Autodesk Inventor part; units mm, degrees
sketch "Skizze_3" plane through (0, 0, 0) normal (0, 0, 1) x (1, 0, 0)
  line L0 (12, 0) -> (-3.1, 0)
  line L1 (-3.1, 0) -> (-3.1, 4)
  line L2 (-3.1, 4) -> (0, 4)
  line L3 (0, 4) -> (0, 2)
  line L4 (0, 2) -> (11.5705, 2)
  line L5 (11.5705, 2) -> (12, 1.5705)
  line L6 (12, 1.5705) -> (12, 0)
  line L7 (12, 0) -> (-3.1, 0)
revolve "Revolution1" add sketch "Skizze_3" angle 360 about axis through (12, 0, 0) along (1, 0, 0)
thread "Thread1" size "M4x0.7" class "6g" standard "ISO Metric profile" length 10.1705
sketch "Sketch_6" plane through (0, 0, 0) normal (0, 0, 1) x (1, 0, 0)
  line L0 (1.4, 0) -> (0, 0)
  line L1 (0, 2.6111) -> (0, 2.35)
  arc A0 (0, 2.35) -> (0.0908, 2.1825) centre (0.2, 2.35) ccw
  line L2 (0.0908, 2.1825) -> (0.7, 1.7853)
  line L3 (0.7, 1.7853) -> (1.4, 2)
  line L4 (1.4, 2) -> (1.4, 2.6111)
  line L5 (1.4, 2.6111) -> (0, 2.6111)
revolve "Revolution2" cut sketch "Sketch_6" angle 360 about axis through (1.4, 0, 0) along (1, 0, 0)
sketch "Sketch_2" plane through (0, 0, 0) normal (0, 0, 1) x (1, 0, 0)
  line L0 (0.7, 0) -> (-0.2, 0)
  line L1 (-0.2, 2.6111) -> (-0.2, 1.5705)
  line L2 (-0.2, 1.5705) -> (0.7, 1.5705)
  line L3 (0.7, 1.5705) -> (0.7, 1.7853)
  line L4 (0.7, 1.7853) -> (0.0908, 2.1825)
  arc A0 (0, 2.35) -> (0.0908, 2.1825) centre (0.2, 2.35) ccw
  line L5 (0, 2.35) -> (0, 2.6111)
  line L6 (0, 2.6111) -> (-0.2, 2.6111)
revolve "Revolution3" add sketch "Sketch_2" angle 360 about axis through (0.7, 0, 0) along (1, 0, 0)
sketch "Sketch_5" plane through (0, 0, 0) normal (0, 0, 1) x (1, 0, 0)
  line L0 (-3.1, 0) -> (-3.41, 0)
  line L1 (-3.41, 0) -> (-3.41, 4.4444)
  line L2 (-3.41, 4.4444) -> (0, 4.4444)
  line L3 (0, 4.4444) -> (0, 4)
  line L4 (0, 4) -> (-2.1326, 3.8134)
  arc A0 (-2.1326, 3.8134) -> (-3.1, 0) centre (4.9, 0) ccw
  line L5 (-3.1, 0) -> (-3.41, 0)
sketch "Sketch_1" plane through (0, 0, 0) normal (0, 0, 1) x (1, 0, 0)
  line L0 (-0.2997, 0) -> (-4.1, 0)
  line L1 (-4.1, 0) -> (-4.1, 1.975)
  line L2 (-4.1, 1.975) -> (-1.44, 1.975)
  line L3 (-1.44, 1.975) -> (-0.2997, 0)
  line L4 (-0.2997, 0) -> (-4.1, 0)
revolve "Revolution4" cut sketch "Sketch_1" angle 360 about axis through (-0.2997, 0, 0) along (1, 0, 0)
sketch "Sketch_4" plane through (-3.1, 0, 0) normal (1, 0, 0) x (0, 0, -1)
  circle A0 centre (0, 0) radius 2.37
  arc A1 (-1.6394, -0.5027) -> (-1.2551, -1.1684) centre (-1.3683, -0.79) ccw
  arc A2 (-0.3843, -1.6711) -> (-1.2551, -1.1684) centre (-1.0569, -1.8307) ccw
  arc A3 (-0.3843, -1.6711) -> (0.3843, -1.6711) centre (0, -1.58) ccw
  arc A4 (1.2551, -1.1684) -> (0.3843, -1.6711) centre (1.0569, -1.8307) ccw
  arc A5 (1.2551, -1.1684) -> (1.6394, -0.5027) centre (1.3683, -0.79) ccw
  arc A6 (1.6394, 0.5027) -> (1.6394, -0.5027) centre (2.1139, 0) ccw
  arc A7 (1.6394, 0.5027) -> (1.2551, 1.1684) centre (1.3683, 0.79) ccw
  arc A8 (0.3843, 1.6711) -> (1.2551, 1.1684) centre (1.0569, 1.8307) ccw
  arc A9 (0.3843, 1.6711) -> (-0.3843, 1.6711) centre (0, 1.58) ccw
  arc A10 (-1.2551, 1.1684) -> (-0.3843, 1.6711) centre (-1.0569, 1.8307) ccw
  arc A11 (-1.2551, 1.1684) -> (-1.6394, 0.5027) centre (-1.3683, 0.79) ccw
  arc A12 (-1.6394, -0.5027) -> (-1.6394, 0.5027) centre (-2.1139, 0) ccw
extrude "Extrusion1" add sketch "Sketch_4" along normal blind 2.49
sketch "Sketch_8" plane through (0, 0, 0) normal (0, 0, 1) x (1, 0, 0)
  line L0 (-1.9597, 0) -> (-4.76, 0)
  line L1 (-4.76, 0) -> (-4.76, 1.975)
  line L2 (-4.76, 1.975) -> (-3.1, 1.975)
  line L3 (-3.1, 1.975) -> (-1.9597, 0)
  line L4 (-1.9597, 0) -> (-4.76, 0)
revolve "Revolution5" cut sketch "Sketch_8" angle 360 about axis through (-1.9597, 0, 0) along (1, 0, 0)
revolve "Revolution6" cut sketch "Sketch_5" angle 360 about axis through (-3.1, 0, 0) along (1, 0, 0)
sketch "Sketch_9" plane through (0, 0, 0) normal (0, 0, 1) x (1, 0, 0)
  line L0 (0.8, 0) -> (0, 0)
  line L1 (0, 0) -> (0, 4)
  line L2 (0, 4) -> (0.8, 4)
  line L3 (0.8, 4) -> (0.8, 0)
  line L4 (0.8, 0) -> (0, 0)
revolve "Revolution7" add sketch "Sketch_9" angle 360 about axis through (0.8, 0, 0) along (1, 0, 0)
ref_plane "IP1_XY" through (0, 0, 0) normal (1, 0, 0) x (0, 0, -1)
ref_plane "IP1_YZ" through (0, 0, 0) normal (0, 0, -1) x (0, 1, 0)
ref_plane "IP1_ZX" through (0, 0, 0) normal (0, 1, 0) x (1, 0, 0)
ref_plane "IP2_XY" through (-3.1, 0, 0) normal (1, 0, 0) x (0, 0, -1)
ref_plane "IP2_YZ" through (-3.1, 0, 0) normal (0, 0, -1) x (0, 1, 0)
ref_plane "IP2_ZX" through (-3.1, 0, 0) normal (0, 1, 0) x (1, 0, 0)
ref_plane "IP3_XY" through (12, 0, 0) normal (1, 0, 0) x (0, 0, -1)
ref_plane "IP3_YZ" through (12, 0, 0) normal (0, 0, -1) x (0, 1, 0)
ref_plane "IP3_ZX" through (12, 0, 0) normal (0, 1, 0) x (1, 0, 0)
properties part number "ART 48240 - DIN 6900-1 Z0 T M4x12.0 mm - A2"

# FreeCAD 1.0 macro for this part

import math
import FreeCAD as App
import Part
import Sketcher
Q = App.Units.Quantity


def add_polygon(sketch, points):
    """Adds a closed chain of lines whose ends are joined by coincident constraints."""
    first, n = sketch.GeometryCount, len(points)
    for a, b in zip(points, points[1:] + points[:1]):
        sketch.addGeometry(Part.LineSegment(App.Vector(*a, 0), App.Vector(*b, 0)), False)
    for i in range(n):
        sketch.addConstraint(Sketcher.Constraint("Coincident", first + i, 2, first + (i + 1) % n, 1))

doc = App.newDocument("Part")
body = doc.addObject("PartDesign::Body", "Body")

sketch1 = body.newObject("Sketcher::SketchObject", "Sketch")
sketch1.AttachmentSupport = (doc.getObject("XY_Plane"), [""])
sketch1.MapMode = "FlatFace"
add_polygon(sketch1, [(-3.1, 0), (12, 0), (12, 1.5705), (11.5705, 2), (0, 2), (0, 4), (-3.1, 4)])
sketch1.addConstraint(Sketcher.Constraint("Horizontal", 0))
sketch1.addConstraint(Sketcher.Constraint("Vertical", 1))
sketch1.addConstraint(Sketcher.Constraint("Horizontal", 3))
sketch1.addConstraint(Sketcher.Constraint("Vertical", 4))
sketch1.addConstraint(Sketcher.Constraint("Horizontal", 5))
sketch1.addConstraint(Sketcher.Constraint("Vertical", 6))
sketch1.addConstraint(Sketcher.Constraint("PointOnObject", 0, 2, -1))
sketch1.addConstraint(Sketcher.Constraint("PointOnObject", 3, 2, -2))
sketch1.addConstraint(Sketcher.Constraint("DistanceY", 4, 1, 4, 2, 2.0))
sketch1.addConstraint(Sketcher.Constraint("DistanceY", 6, 2, 6, 1, 4.0))
sketch1.addConstraint(Sketcher.Constraint("Angle", 2, Q("135 deg")))
sketch1.addConstraint(Sketcher.Constraint("DistanceX", 0, 1, 0, 2, 15.1))
sketch1.addConstraint(Sketcher.Constraint("DistanceX", 5, 2, 5, 1, 3.1))
sketch1.addConstraint(Sketcher.Constraint("DistanceX", 3, 2, 3, 1, 11.5705))
revolution = body.newObject("PartDesign::Revolution", "Revolution")
revolution.Profile = sketch1
revolution.ReferenceAxis = (sketch1, ["H_Axis"])
revolution.Angle = 360

sketch2 = body.newObject("Sketcher::SketchObject", "Sketch001")
sketch2.AttachmentSupport = (doc.getObject("XY_Plane"), [""])
sketch2.MapMode = "FlatFace"
sketch2.addGeometry(Part.LineSegment(App.Vector(1.4, 2.6111, 0), App.Vector(0, 2.6111, 0)), False)
sketch2.addGeometry(Part.LineSegment(App.Vector(0, 2.6111, 0), App.Vector(0, 2.35, 0)), False)
sketch2.addGeometry(Part.ArcOfCircle(Part.Circle(App.Vector(0.2, 2.35, 0), App.Vector(0, 0, 1), 0.2), math.radians(180), math.radians(236.89805)), False)
sketch2.addGeometry(Part.LineSegment(App.Vector(0.0908, 2.1825, 0), App.Vector(0.7, 1.7853, 0)), False)
sketch2.addGeometry(Part.LineSegment(App.Vector(0.7, 1.7853, 0), App.Vector(1.4, 2, 0)), False)
sketch2.addGeometry(Part.LineSegment(App.Vector(1.4, 2, 0), App.Vector(1.4, 2.6111, 0)), False)
sketch2.addConstraint(Sketcher.Constraint("Coincident", 0, 2, 1, 1))
sketch2.addConstraint(Sketcher.Constraint("Tangent", 1, 2, 2, 1))
sketch2.addConstraint(Sketcher.Constraint("Tangent", 2, 2, 3, 1))
sketch2.addConstraint(Sketcher.Constraint("Coincident", 3, 2, 4, 1))
sketch2.addConstraint(Sketcher.Constraint("Coincident", 4, 2, 5, 1))
sketch2.addConstraint(Sketcher.Constraint("Coincident", 5, 2, 0, 1))
sketch2.addConstraint(Sketcher.Constraint("Horizontal", 0))
sketch2.addConstraint(Sketcher.Constraint("Vertical", 1))
sketch2.addConstraint(Sketcher.Constraint("Vertical", 5))
sketch2.addConstraint(Sketcher.Constraint("PointOnObject", 0, 2, -2))
sketch2.addConstraint(Sketcher.Constraint("Radius", 2, 0.2))
sketch2.addConstraint(Sketcher.Constraint("DistanceX", 0, 2, 0, 1, 1.4))
sketch2.addConstraint(Sketcher.Constraint("DistanceY", -1, 1, 4, 2, 2.0))
sketch2.addConstraint(Sketcher.Constraint("DistanceX", -1, 1, 3, 2, 0.7))
sketch2.addConstraint(Sketcher.Constraint("DistanceY", 1, 2, 1, 1, 0.261))
sketch2.addConstraint(Sketcher.Constraint("DistanceY", 5, 1, 5, 2, 0.611))
sketch2.addConstraint(Sketcher.Constraint("Distance", 3, 0.7272))
groove = body.newObject("PartDesign::Groove", "Groove")
groove.Profile = sketch2
groove.ReferenceAxis = (sketch2, ["H_Axis"])
groove.Angle = 360

sketch3 = body.newObject("Sketcher::SketchObject", "Sketch002")
sketch3.AttachmentSupport = (doc.getObject("XY_Plane"), [""])
sketch3.MapMode = "FlatFace"
sketch3.addGeometry(Part.LineSegment(App.Vector(0, 2.6111, 0), App.Vector(-0.2, 2.6111, 0)), False)
sketch3.addGeometry(Part.LineSegment(App.Vector(-0.2, 2.6111, 0), App.Vector(-0.2, 1.5705, 0)), False)
sketch3.addGeometry(Part.LineSegment(App.Vector(-0.2, 1.5705, 0), App.Vector(0.7, 1.5705, 0)), False)
sketch3.addGeometry(Part.LineSegment(App.Vector(0.7, 1.5705, 0), App.Vector(0.7, 1.7853, 0)), False)
sketch3.addGeometry(Part.LineSegment(App.Vector(0.7, 1.7853, 0), App.Vector(0.0908, 2.1825, 0)), False)
sketch3.addGeometry(Part.ArcOfCircle(Part.Circle(App.Vector(0.2, 2.35, 0), App.Vector(0, 0, 1), 0.2), math.radians(180), math.radians(236.89805)), False)
sketch3.addGeometry(Part.LineSegment(App.Vector(0, 2.35, 0), App.Vector(0, 2.6111, 0)), False)
sketch3.addConstraint(Sketcher.Constraint("Coincident", 0, 2, 1, 1))
sketch3.addConstraint(Sketcher.Constraint("Coincident", 1, 2, 2, 1))
sketch3.addConstraint(Sketcher.Constraint("Coincident", 2, 2, 3, 1))
sketch3.addConstraint(Sketcher.Constraint("Coincident", 3, 2, 4, 1))
sketch3.addConstraint(Sketcher.Constraint("Tangent", 4, 2, 5, 2))
sketch3.addConstraint(Sketcher.Constraint("Tangent", 5, 1, 6, 1))
sketch3.addConstraint(Sketcher.Constraint("Coincident", 6, 2, 0, 1))
sketch3.addConstraint(Sketcher.Constraint("Horizontal", 0))
sketch3.addConstraint(Sketcher.Constraint("Vertical", 1))
sketch3.addConstraint(Sketcher.Constraint("Horizontal", 2))
sketch3.addConstraint(Sketcher.Constraint("Vertical", 3))
sketch3.addConstraint(Sketcher.Constraint("Vertical", 6))
sketch3.addConstraint(Sketcher.Constraint("PointOnObject", 5, 1, -2))
sketch3.addConstraint(Sketcher.Constraint("Radius", 5, 0.2))
sketch3.addConstraint(Sketcher.Constraint("DistanceX", 0, 2, 0, 1, 0.2))
sketch3.addConstraint(Sketcher.Constraint("DistanceX", 2, 1, 2, 2, 0.9))
sketch3.addConstraint(Sketcher.Constraint("DistanceY", 6, 1, 6, 2, 0.261))
sketch3.addConstraint(Sketcher.Constraint("DistanceY", -1, 1, 5, 3, 2.35))
sketch3.addConstraint(Sketcher.Constraint("DistanceY", 1, 2, 1, 1, 1.0406))
sketch3.addConstraint(Sketcher.Constraint("DistanceY", 3, 1, 3, 2, 0.2148))
revolution2 = body.newObject("PartDesign::Revolution", "Revolution001")
revolution2.Profile = sketch3
revolution2.ReferenceAxis = (sketch3, ["H_Axis"])
revolution2.Angle = 360

sketch4 = body.newObject("Sketcher::SketchObject", "Sketch003")
sketch4.AttachmentSupport = (doc.getObject("XY_Plane"), [""])
sketch4.MapMode = "FlatFace"
add_polygon(sketch4, [(-4.1, 0), (-0.2997, 0), (-1.44, 1.975), (-4.1, 1.975)])
sketch4.addConstraint(Sketcher.Constraint("Horizontal", 0))
sketch4.addConstraint(Sketcher.Constraint("Horizontal", 2))
sketch4.addConstraint(Sketcher.Constraint("Vertical", 3))
sketch4.addConstraint(Sketcher.Constraint("PointOnObject", 0, 2, -1))
sketch4.addConstraint(Sketcher.Constraint("Angle", 1, Q("120.0007 deg")))
sketch4.addConstraint(Sketcher.Constraint("DistanceX", 2, 2, 2, 1, 2.66))
sketch4.addConstraint(Sketcher.Constraint("DistanceX", 2, 2, -1, 1, 4.1))
sketch4.addConstraint(Sketcher.Constraint("DistanceY", 3, 2, 3, 1, 1.975))
groove2 = body.newObject("PartDesign::Groove", "Groove001")
groove2.Profile = sketch4
groove2.ReferenceAxis = (sketch4, ["H_Axis"])
groove2.Angle = 360

sketch5 = body.newObject("Sketcher::SketchObject", "Sketch004")
sketch5.AttachmentSupport = (doc.getObject("YZ_Plane"), [""])
sketch5.MapMode = "FlatFace"
sketch5.AttachmentOffset = App.Placement(App.Vector(0, 0, -3.1), App.Rotation())
sketch5.addGeometry(Part.Circle(App.Vector(0, 0, 0), App.Vector(0, 0, 1), 2.37), False)
sketch5.addGeometry(Part.ArcOfCircle(Part.Circle(App.Vector(-0.79, 1.3683, 0), App.Vector(0, 0, 1), 0.395015), math.radians(43.338232), math.radians(196.654782)), False)
sketch5.addGeometry(Part.ArcOfCircle(Part.Circle(App.Vector(0, 2.1139, 0), App.Vector(0, 0, 1), 0.691272), math.radians(-136.652981), math.radians(-43.347019)), False)
sketch5.addGeometry(Part.ArcOfCircle(Part.Circle(App.Vector(0.79, 1.3683, 0), App.Vector(0, 0, 1), 0.394969), math.radians(-16.654782), math.radians(136.661768)), False)
sketch5.addGeometry(Part.ArcOfCircle(Part.Circle(App.Vector(1.8307, 1.0569, 0), App.Vector(0, 0, 1), 0.691321), math.radians(163.339654), math.radians(256.651273)), False)
sketch5.addGeometry(Part.ArcOfCircle(Part.Circle(App.Vector(1.58, 0, 0), App.Vector(0, 0, 1), 0.39495), math.radians(-76.663953), math.radians(76.663953)), False)
sketch5.addGeometry(Part.ArcOfCircle(Part.Circle(App.Vector(1.8307, -1.0569, 0), App.Vector(0, 0, 1), 0.691276), math.radians(103.348727), math.radians(196.660346)), False)
sketch5.addGeometry(Part.ArcOfCircle(Part.Circle(App.Vector(0.79, -1.3683, 0), App.Vector(0, 0, 1), 0.395015), math.radians(-136.661768), math.radians(16.654782)), False)
sketch5.addGeometry(Part.ArcOfCircle(Part.Circle(App.Vector(0, -2.1139, 0), App.Vector(0, 0, 1), 0.691272), math.radians(43.347019), math.radians(136.652981)), False)
sketch5.addGeometry(Part.ArcOfCircle(Part.Circle(App.Vector(-0.79, -1.3683, 0), App.Vector(0, 0, 1), 0.394969), math.radians(163.345218), math.radians(316.661768)), False)
sketch5.addGeometry(Part.ArcOfCircle(Part.Circle(App.Vector(-1.8307, -1.0569, 0), App.Vector(0, 0, 1), 0.691321), math.radians(-16.660346), math.radians(76.651273)), False)
sketch5.addGeometry(Part.ArcOfCircle(Part.Circle(App.Vector(-1.58, 0, 0), App.Vector(0, 0, 1), 0.39495), math.radians(103.336047), math.radians(256.663953)), False)
sketch5.addGeometry(Part.ArcOfCircle(Part.Circle(App.Vector(-1.8307, 1.0569, 0), App.Vector(0, 0, 1), 0.691276), math.radians(-76.651273), math.radians(16.660346)), False)
sketch5.addConstraint(Sketcher.Constraint("Tangent", 1, 1, 2, 1))
sketch5.addConstraint(Sketcher.Constraint("Tangent", 2, 2, 3, 2))
sketch5.addConstraint(Sketcher.Constraint("Tangent", 3, 1, 4, 1))
sketch5.addConstraint(Sketcher.Constraint("Tangent", 4, 2, 5, 2))
sketch5.addConstraint(Sketcher.Constraint("Tangent", 5, 1, 6, 1))
sketch5.addConstraint(Sketcher.Constraint("Tangent", 6, 2, 7, 2))
sketch5.addConstraint(Sketcher.Constraint("Tangent", 7, 1, 8, 1))
sketch5.addConstraint(Sketcher.Constraint("Tangent", 8, 2, 9, 2))
sketch5.addConstraint(Sketcher.Constraint("Tangent", 9, 1, 10, 1))
sketch5.addConstraint(Sketcher.Constraint("Tangent", 10, 2, 11, 2))
sketch5.addConstraint(Sketcher.Constraint("Tangent", 11, 1, 12, 1))
sketch5.addConstraint(Sketcher.Constraint("Tangent", 12, 2, 1, 2))
sketch5.addConstraint(Sketcher.Constraint("Coincident", 0, 3, -1, 1))
sketch5.addConstraint(Sketcher.Constraint("Equal", 1, 3))
sketch5.addConstraint(Sketcher.Constraint("Equal", 2, 4))
sketch5.addConstraint(Sketcher.Constraint("Equal", 3, 5))
sketch5.addConstraint(Sketcher.Constraint("Equal", 4, 6))
sketch5.addConstraint(Sketcher.Constraint("Equal", 5, 7))
sketch5.addConstraint(Sketcher.Constraint("Equal", 6, 8))
sketch5.addConstraint(Sketcher.Constraint("Equal", 7, 9))
sketch5.addConstraint(Sketcher.Constraint("Equal", 8, 10))
sketch5.addConstraint(Sketcher.Constraint("Equal", 9, 11))
sketch5.addConstraint(Sketcher.Constraint("Equal", 10, 12))
sketch5.addConstraint(Sketcher.Constraint("Symmetric", 1, 3, 7, 3, -1, 1))
sketch5.addConstraint(Sketcher.Constraint("Symmetric", 3, 3, 9, 3, -1, 1))
sketch5.addConstraint(Sketcher.Constraint("Symmetric", 5, 3, 11, 3, -1, 1))
sketch5.addConstraint(Sketcher.Constraint("Symmetric", 1, 3, 3, 3, -2))
sketch5.addConstraint(Sketcher.Constraint("PointOnObject", 5, 3, -1))
sketch5.addConstraint(Sketcher.Constraint("Diameter", 0, 4.74))
sketch5.addConstraint(Sketcher.Constraint("Radius", 1, 0.395))
sketch5.addConstraint(Sketcher.Constraint("Radius", 2, 0.6913))
sketch5.addConstraint(Sketcher.Constraint("DistanceX", 1, 3, -1, 1, 0.79))
sketch5.addConstraint(Sketcher.Constraint("DistanceX", -1, 1, 5, 3, 1.58))
sketch5.addConstraint(Sketcher.Constraint("DistanceY", -1, 1, 2, 3, 2.114))
pad1 = body.newObject("PartDesign::Pad", "Pad")
pad1.Profile = sketch5
pad1.Length = 2.49

sketch6 = body.newObject("Sketcher::SketchObject", "Sketch005")
sketch6.AttachmentSupport = (doc.getObject("XY_Plane"), [""])
sketch6.MapMode = "FlatFace"
add_polygon(sketch6, [(-4.76, 0), (-1.9597, 0), (-3.1, 1.975), (-4.76, 1.975)])
sketch6.addConstraint(Sketcher.Constraint("Horizontal", 0))
sketch6.addConstraint(Sketcher.Constraint("Horizontal", 2))
sketch6.addConstraint(Sketcher.Constraint("Vertical", 3))
sketch6.addConstraint(Sketcher.Constraint("PointOnObject", 0, 2, -1))
sketch6.addConstraint(Sketcher.Constraint("Angle", 1, Q("120.0007 deg")))
sketch6.addConstraint(Sketcher.Constraint("DistanceX", 2, 2, 2, 1, 1.66))
sketch6.addConstraint(Sketcher.Constraint("DistanceX", 1, 2, -1, 1, 3.1))
sketch6.addConstraint(Sketcher.Constraint("DistanceY", 3, 2, 3, 1, 1.975))
groove3 = body.newObject("PartDesign::Groove", "Groove002")
groove3.Profile = sketch6
groove3.ReferenceAxis = (sketch6, ["H_Axis"])
groove3.Angle = 360

sketch7 = body.newObject("Sketcher::SketchObject", "Sketch006")
sketch7.AttachmentSupport = (doc.getObject("XY_Plane"), [""])
sketch7.MapMode = "FlatFace"
sketch7.addGeometry(Part.LineSegment(App.Vector(-3.41, 0, 0), App.Vector(-3.1, 0, 0)), False)
sketch7.addGeometry(Part.ArcOfCircle(Part.Circle(App.Vector(4.9, 0, 0), App.Vector(0, 0, 1), 7.999968), math.radians(151.531409), math.radians(180)), False)
sketch7.addGeometry(Part.LineSegment(App.Vector(-2.1326, 3.8134, 0), App.Vector(0, 4, 0)), False)
sketch7.addGeometry(Part.LineSegment(App.Vector(0, 4, 0), App.Vector(0, 4.4444, 0)), False)
sketch7.addGeometry(Part.LineSegment(App.Vector(0, 4.4444, 0), App.Vector(-3.41, 4.4444, 0)), False)
sketch7.addGeometry(Part.LineSegment(App.Vector(-3.41, 4.4444, 0), App.Vector(-3.41, 0, 0)), False)
sketch7.addConstraint(Sketcher.Constraint("Coincident", 0, 2, 1, 2))
sketch7.addConstraint(Sketcher.Constraint("Coincident", 1, 1, 2, 1))
sketch7.addConstraint(Sketcher.Constraint("Coincident", 2, 2, 3, 1))
sketch7.addConstraint(Sketcher.Constraint("Coincident", 3, 2, 4, 1))
sketch7.addConstraint(Sketcher.Constraint("Coincident", 4, 2, 5, 1))
sketch7.addConstraint(Sketcher.Constraint("Coincident", 5, 2, 0, 1))
sketch7.addConstraint(Sketcher.Constraint("Horizontal", 0))
sketch7.addConstraint(Sketcher.Constraint("Vertical", 3))
sketch7.addConstraint(Sketcher.Constraint("Horizontal", 4))
sketch7.addConstraint(Sketcher.Constraint("Vertical", 5))
sketch7.addConstraint(Sketcher.Constraint("PointOnObject", 1, 3, -1))
sketch7.addConstraint(Sketcher.Constraint("PointOnObject", 0, 2, -1))
sketch7.addConstraint(Sketcher.Constraint("PointOnObject", 2, 2, -2))
sketch7.addConstraint(Sketcher.Constraint("Radius", 1, 8.0))
sketch7.addConstraint(Sketcher.Constraint("Angle", 2, Q("5.0006 deg")))
sketch7.addConstraint(Sketcher.Constraint("DistanceY", -1, 1, 2, 2, 4.0))
sketch7.addConstraint(Sketcher.Constraint("DistanceX", 0, 1, 0, 2, 0.31))
sketch7.addConstraint(Sketcher.Constraint("DistanceX", 4, 2, 4, 1, 3.41))
sketch7.addConstraint(Sketcher.Constraint("DistanceY", 3, 1, 3, 2, 0.4444))
groove4 = body.newObject("PartDesign::Groove", "Groove003")
groove4.Profile = sketch7
groove4.ReferenceAxis = (sketch7, ["H_Axis"])
groove4.Angle = 360

sketch8 = body.newObject("Sketcher::SketchObject", "Sketch007")
sketch8.AttachmentSupport = (doc.getObject("XY_Plane"), [""])
sketch8.MapMode = "FlatFace"
add_polygon(sketch8, [(0, 0), (0.8, 0), (0.8, 4), (0, 4)])
sketch8.addConstraint(Sketcher.Constraint("Horizontal", 0))
sketch8.addConstraint(Sketcher.Constraint("Vertical", 1))
sketch8.addConstraint(Sketcher.Constraint("Horizontal", 2))
sketch8.addConstraint(Sketcher.Constraint("Vertical", 3))
sketch8.addConstraint(Sketcher.Constraint("Coincident", 3, 2, -1, 1))
sketch8.addConstraint(Sketcher.Constraint("DistanceY", 1, 1, 1, 2, 4.0))
sketch8.addConstraint(Sketcher.Constraint("DistanceX", 0, 1, 0, 2, 0.8))
revolution3 = body.newObject("PartDesign::Revolution", "Revolution002")
revolution3.Profile = sketch8
revolution3.ReferenceAxis = (sketch8, ["H_Axis"])
revolution3.Angle = 360

doc.recompute()
